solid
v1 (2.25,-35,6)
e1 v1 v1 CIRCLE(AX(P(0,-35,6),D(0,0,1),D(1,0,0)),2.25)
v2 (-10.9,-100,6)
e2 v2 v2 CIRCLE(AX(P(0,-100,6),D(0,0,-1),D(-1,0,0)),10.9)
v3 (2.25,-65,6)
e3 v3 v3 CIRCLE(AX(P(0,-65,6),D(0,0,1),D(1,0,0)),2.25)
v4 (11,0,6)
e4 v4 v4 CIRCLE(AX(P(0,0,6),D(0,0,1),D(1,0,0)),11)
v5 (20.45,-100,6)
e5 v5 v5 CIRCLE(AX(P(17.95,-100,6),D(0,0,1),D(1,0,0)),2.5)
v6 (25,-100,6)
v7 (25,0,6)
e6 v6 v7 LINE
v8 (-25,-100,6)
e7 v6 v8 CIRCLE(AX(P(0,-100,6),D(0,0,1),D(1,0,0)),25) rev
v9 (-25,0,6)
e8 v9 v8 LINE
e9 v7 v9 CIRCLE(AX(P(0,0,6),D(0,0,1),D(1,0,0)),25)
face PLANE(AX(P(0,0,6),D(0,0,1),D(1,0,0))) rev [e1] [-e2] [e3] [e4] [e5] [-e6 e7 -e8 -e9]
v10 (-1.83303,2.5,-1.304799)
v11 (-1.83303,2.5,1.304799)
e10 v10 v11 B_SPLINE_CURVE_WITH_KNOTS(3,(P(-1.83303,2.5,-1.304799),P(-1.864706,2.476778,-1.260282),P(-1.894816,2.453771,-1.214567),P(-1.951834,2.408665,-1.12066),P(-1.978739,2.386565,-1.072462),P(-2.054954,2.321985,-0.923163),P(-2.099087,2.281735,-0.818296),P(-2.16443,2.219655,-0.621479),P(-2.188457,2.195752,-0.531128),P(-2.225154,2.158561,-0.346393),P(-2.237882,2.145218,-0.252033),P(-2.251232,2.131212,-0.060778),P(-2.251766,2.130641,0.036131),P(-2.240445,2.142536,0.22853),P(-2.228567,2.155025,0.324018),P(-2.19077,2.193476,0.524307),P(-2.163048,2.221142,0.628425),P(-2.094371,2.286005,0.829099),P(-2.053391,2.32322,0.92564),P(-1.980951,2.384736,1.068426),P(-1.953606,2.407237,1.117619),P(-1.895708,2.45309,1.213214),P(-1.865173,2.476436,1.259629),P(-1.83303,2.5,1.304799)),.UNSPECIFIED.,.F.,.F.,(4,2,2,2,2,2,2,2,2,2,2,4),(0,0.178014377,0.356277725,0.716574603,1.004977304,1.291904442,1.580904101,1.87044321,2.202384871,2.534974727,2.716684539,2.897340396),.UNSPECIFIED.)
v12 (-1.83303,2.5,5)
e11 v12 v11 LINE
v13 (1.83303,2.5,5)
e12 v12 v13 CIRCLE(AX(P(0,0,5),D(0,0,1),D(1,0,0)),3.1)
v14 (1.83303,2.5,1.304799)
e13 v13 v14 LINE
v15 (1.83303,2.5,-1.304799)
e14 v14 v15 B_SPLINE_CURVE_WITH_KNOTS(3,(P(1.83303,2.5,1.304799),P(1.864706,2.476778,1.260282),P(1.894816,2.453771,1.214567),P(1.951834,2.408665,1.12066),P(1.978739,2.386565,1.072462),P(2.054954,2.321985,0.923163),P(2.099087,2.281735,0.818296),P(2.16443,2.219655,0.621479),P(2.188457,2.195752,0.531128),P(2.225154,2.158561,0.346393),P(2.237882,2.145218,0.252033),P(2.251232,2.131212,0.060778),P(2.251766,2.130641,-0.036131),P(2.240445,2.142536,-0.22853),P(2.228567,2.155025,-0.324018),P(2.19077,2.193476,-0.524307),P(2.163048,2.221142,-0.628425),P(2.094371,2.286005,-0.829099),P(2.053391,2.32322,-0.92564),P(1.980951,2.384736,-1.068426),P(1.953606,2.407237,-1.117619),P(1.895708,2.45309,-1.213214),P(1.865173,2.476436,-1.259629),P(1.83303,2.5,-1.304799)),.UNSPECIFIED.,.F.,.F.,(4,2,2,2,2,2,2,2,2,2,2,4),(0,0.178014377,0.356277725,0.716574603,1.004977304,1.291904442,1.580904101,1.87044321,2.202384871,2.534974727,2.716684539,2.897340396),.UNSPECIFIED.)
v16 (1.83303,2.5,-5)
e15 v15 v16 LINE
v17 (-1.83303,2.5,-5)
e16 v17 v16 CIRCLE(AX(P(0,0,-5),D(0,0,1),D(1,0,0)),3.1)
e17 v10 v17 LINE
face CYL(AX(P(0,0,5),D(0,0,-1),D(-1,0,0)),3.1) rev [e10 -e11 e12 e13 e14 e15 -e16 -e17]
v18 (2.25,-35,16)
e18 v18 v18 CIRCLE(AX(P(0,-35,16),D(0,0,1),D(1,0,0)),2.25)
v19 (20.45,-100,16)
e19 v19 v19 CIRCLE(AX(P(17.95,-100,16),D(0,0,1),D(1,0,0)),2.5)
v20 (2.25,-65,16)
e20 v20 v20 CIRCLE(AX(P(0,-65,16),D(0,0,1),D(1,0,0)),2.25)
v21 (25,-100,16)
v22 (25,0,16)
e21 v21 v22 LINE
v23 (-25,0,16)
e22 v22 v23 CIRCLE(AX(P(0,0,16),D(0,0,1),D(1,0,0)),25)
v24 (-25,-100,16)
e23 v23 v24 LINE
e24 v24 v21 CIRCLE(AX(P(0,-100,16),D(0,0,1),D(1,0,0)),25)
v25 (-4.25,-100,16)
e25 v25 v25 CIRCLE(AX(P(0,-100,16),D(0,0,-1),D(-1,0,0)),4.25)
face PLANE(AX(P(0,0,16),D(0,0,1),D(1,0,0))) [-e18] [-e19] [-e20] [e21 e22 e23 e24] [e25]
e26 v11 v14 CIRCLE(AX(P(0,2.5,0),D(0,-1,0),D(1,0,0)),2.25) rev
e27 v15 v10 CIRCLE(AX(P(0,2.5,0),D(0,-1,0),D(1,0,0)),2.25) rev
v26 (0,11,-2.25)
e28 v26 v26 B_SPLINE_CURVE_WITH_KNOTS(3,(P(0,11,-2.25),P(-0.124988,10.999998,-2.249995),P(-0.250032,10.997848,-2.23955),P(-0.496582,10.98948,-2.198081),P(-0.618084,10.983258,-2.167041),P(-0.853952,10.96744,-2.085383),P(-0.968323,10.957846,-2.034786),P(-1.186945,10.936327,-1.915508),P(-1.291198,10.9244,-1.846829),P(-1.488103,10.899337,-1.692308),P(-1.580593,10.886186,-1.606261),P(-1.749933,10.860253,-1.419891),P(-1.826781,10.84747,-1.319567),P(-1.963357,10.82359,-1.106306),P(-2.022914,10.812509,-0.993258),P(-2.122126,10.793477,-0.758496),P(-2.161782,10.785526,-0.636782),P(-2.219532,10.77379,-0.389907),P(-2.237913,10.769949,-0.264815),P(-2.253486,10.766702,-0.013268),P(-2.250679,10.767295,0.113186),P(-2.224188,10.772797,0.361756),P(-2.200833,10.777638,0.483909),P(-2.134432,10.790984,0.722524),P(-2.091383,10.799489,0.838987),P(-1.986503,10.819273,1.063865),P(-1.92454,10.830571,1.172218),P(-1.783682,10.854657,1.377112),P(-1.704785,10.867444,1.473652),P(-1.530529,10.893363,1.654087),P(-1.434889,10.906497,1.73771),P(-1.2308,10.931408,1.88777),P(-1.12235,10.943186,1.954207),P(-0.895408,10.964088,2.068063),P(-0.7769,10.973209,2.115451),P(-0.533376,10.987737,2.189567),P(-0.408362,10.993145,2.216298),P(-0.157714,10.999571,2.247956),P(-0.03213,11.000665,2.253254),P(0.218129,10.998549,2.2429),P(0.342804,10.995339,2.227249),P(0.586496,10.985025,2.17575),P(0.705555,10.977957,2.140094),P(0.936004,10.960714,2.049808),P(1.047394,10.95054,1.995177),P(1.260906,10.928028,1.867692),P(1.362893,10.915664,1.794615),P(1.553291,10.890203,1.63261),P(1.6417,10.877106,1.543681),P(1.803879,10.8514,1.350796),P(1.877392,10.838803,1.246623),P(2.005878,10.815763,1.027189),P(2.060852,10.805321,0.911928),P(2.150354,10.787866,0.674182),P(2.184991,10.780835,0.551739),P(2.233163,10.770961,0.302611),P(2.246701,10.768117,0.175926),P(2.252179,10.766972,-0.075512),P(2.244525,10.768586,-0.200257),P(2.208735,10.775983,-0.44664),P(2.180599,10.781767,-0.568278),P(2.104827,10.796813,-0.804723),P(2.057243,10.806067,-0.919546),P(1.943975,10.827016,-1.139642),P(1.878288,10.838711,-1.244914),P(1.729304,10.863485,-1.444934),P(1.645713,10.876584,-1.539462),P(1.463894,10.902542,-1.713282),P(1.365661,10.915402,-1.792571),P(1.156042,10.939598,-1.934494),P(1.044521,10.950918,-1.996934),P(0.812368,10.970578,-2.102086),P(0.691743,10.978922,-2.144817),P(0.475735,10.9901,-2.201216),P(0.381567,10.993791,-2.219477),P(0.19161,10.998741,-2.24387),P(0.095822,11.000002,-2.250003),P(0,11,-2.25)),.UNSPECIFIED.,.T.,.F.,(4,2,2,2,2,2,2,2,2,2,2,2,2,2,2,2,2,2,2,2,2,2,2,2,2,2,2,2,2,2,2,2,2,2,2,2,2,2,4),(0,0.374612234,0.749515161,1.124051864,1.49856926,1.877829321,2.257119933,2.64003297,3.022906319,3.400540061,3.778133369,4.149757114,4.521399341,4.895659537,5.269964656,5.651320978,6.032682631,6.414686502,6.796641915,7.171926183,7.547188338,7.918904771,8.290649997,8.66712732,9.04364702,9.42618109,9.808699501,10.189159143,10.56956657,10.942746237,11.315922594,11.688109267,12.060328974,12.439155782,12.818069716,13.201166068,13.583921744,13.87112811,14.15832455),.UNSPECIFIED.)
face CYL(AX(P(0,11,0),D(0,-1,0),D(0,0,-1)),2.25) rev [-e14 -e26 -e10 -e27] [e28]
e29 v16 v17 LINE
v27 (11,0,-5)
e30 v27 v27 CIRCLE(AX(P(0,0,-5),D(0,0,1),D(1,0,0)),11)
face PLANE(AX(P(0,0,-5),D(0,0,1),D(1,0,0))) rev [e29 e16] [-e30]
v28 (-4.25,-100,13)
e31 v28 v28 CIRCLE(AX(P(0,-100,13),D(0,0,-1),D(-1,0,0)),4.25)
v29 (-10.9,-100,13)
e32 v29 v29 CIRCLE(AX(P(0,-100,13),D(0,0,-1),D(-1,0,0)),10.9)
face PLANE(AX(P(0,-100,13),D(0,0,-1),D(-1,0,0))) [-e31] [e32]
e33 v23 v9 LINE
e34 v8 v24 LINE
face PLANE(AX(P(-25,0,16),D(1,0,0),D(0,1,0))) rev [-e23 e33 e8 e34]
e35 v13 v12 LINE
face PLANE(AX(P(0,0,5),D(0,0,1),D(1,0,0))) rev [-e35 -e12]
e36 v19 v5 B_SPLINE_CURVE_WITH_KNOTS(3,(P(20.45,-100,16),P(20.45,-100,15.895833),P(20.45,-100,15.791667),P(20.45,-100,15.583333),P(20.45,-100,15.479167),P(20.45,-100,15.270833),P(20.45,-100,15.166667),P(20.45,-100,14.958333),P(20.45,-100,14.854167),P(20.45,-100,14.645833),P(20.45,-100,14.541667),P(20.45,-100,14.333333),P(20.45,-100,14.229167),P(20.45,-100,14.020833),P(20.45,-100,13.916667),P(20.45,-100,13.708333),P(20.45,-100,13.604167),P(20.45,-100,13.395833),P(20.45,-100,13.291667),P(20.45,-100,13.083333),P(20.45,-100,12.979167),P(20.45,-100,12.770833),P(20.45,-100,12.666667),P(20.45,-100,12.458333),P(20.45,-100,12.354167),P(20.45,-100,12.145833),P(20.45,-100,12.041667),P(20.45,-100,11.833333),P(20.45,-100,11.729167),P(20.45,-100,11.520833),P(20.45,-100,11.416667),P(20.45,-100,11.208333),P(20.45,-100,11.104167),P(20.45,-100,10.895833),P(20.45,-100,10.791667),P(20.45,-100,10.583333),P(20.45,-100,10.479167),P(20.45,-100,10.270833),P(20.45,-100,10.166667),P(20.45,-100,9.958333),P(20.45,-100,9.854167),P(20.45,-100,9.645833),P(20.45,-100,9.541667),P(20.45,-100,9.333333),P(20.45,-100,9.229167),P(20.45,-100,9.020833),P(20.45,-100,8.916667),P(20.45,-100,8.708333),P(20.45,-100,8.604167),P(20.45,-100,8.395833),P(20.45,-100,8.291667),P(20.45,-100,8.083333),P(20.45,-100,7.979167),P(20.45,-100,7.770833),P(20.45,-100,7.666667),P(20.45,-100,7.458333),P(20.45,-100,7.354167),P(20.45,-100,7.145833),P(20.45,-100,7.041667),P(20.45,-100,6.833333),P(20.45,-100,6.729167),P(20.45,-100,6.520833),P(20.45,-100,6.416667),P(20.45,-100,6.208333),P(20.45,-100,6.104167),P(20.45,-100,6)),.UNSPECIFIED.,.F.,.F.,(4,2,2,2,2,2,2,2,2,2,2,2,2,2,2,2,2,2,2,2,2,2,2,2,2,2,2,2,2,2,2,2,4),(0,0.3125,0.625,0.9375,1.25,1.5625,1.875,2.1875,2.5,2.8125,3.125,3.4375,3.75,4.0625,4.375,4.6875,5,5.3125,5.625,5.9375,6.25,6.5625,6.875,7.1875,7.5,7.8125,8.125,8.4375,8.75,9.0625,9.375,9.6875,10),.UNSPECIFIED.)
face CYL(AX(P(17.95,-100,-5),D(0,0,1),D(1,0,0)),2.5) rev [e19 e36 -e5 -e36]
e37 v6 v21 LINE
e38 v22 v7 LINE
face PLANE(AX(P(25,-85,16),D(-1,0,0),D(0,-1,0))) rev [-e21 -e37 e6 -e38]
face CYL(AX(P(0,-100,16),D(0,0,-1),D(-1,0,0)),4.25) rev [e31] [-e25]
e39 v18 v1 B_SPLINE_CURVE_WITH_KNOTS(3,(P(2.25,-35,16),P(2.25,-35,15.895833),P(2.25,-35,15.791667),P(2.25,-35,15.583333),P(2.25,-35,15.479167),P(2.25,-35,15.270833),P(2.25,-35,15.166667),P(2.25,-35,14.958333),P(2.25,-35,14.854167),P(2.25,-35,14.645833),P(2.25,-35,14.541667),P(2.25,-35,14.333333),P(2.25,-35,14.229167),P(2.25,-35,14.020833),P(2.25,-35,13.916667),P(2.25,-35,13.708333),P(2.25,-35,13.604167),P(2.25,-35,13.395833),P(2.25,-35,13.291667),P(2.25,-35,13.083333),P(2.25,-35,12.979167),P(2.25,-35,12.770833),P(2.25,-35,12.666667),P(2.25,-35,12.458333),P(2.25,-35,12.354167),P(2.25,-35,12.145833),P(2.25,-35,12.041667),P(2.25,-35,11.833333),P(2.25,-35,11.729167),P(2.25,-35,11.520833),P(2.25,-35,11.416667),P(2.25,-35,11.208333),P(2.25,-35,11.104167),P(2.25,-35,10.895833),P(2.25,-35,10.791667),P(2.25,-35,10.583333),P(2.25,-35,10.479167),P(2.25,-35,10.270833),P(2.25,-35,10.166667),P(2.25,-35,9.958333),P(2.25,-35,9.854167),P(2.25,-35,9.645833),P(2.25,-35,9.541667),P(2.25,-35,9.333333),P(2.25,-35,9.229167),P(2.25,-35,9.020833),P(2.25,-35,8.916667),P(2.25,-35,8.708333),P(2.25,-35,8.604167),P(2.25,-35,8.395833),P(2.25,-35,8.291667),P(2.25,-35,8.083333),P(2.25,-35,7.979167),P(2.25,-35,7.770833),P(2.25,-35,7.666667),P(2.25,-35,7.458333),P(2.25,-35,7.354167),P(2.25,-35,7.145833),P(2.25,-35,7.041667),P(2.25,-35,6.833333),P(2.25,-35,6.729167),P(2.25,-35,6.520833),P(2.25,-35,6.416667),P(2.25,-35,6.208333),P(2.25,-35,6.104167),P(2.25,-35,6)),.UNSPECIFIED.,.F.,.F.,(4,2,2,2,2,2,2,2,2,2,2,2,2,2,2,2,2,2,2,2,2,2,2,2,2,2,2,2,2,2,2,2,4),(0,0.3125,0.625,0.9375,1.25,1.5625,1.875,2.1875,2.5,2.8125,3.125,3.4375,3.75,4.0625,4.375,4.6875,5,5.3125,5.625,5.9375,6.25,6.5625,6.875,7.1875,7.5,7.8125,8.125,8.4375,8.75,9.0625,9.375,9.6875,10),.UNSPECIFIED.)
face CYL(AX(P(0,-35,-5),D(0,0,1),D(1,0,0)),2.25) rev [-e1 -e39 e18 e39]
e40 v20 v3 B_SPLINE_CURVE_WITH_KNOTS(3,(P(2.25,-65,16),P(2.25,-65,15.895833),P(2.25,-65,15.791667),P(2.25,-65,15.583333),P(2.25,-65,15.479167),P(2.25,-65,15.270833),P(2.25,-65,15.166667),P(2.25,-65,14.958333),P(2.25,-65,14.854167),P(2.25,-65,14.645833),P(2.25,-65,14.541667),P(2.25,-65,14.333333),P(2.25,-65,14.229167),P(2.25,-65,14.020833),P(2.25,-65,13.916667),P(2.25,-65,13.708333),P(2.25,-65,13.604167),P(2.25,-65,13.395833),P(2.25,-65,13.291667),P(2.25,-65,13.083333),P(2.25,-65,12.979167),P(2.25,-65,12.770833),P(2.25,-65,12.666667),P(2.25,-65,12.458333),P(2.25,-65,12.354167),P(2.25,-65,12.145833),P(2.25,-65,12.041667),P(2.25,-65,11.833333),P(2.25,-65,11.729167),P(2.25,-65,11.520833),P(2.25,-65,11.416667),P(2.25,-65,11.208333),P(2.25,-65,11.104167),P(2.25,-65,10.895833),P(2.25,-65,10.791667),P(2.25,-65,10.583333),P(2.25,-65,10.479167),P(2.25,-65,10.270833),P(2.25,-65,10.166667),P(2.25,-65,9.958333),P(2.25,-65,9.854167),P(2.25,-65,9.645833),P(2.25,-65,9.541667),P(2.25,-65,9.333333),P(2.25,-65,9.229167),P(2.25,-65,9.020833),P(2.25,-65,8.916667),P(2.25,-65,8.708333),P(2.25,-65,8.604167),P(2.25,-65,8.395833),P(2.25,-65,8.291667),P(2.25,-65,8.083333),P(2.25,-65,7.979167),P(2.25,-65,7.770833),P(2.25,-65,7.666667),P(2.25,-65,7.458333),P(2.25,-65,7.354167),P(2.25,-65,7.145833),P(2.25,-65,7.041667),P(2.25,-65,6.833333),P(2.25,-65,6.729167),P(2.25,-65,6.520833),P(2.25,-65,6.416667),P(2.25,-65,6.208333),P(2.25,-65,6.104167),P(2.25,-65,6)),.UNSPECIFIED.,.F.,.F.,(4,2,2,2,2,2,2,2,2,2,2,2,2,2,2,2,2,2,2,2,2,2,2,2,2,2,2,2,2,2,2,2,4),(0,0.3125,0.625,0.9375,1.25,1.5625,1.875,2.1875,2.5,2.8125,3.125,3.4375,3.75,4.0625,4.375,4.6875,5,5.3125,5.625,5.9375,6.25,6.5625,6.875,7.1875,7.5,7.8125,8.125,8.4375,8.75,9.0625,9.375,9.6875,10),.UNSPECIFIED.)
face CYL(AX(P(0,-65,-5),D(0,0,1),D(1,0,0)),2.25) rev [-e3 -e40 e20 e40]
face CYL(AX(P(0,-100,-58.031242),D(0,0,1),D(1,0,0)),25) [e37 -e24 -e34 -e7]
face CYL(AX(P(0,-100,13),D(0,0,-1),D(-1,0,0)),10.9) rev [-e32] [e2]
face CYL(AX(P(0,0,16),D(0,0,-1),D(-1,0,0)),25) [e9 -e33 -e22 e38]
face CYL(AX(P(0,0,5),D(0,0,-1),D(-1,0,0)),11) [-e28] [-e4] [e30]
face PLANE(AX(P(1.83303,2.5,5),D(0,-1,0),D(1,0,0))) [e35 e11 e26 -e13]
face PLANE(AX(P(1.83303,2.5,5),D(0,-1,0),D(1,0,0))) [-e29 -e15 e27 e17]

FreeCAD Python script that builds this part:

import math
import FreeCAD as App
import Part
import Sketcher
from FreeCAD import Vector
Q = App.Units.Quantity

doc = App.newDocument("Part")
params = doc.addObject("Spreadsheet::Sheet", "Params")
for row, (alias, value) in enumerate([
    ("sketch1_diameter", "22 mm"),
    ("sketch1_radius", "3.1 mm"),
    ("pad1_length", "10 mm"),
    ("sketch2_diameter", "22 mm"),
    ("pad2_length", "6 mm"),
    ("sketch3_diameter", "4.5 mm"),
    ("sketch4_radius", "25 mm"),
    ("sketch4_height", "85 mm"),
    ("pad3_length", "5 mm"),
    ("pad3_length2", "5 mm"),
    ("sketch5_radius", "25 mm"),
    ("sketch5_height", "15 mm"),
    ("pad4_length", "10 mm"),
    ("sketch6_diameter", "4.5 mm"),
    ("sketch7_diameter", "21.8 mm"),
    ("pocket3_length", "7 mm"),
    ("sketch8_diameter", "8.5 mm"),
    ("sketch9_diameter", "5 mm"),
], start=1):
    params.set(f"A{row}", alias)
    params.set(f"B{row}", "=" + value)
    params.setAlias(f"B{row}", alias)

body = doc.addObject("PartDesign::Body", "Body")

# Sketch on XY plane
sketch1 = body.newObject("Sketcher::SketchObject", "Sketch")
sketch1.AttachmentSupport = (doc.getObject("XY_Plane"), [""])
sketch1.MapMode = "FlatFace"
sketch1.addGeometry([
    Part.Circle(Vector(0, 0, 0), Vector(0, 0, 1), 11),
    Part.LineSegment(Vector(-1.8, 2.5, 0), Vector(1.8, 2.5, 0)),
    Part.ArcOfCircle(Part.Circle(Vector(0, 0, 0), Vector(0, 0, 1), 3.1), math.radians(126), math.radians(414)),
], False)
sketch1.addConstraint([
    Sketcher.Constraint("Coincident", 1, 1, 2, 1),
    Sketcher.Constraint("Coincident", 2, 2, 1, 2),
    Sketcher.Constraint("Horizontal", 1),
    Sketcher.Constraint("Coincident", 0, 3, -1, 1),
    Sketcher.Constraint("Coincident", 2, 3, -1, 1),
    Sketcher.Constraint("Diameter", 0, Q("22 mm")),
    Sketcher.Constraint("Radius", 2, Q("3.1 mm")),
    Sketcher.Constraint("DistanceY", -1, 1, 1, 1, Q("2.5 mm")),
])
sketch1.setExpression("Constraints[5]", "Params.sketch1_diameter")
sketch1.setExpression("Constraints[6]", "Params.sketch1_radius")
pad1 = body.newObject("PartDesign::Pad", "Pad")
pad1.Profile = sketch1
pad1.setExpression("Length", "Params.pad1_length")
pad1.Midplane = True

# Sketch on XY plane
sketch2 = body.newObject("Sketcher::SketchObject", "Sketch001")
sketch2.AttachmentSupport = (doc.getObject("XY_Plane"), [""])
sketch2.MapMode = "FlatFace"
sketch2.AttachmentOffset = App.Placement(Vector(0, 0, 11), App.Rotation())
sketch2.addGeometry(Part.Circle(Vector(0, 0, 0), Vector(0, 0, 1), 11), False)
sketch2.addConstraint([
    Sketcher.Constraint("Coincident", 0, 3, -1, 1),
    Sketcher.Constraint("Diameter", 0, Q("22 mm")),
])
sketch2.setExpression("Constraints[1]", "Params.sketch2_diameter")
pad2 = body.newObject("PartDesign::Pad", "Pad001")
pad2.Profile = sketch2
pad2.setExpression("Length", "Params.pad2_length")
pad2.Reversed = True

# Sketch on XZ plane
sketch3 = body.newObject("Sketcher::SketchObject", "Sketch002")
sketch3.AttachmentSupport = (doc.getObject("XZ_Plane"), [""])
sketch3.MapMode = "FlatFace"
sketch3.addGeometry(Part.Circle(Vector(0, 0, 0), Vector(0, 0, 1), 2.2), False)
sketch3.addConstraint([
    Sketcher.Constraint("Coincident", 0, 3, -1, 1),
    Sketcher.Constraint("Diameter", 0, Q("4.5 mm")),
])
sketch3.setExpression("Constraints[1]", "Params.sketch3_diameter")
pocket1 = body.newObject("PartDesign::Pocket", "Pocket")
pocket1.Profile = sketch3
pocket1.Type = "ThroughAll"

# Sketch on XY plane
sketch4 = body.newObject("Sketcher::SketchObject", "Sketch003")
sketch4.AttachmentSupport = (doc.getObject("XY_Plane"), [""])
sketch4.MapMode = "FlatFace"
sketch4.AttachmentOffset = App.Placement(Vector(0, 0, 11), App.Rotation())
sketch4.addGeometry([
    Part.LineSegment(Vector(-25, 0, 0), Vector(-25, -85, 0)),
    Part.LineSegment(Vector(-25, -85, 0), Vector(25, -85, 0)),
    Part.LineSegment(Vector(25, -85, 0), Vector(25, 0, 0)),
    Part.ArcOfCircle(Part.Circle(Vector(0, 0, 0), Vector(0, 0, 1), 25), math.radians(0), math.radians(180)),
], False)
sketch4.addConstraint([
    Sketcher.Constraint("Coincident", 0, 2, 1, 1),
    Sketcher.Constraint("Coincident", 1, 2, 2, 1),
    Sketcher.Constraint("Tangent", 2, 2, 3, 1),
    Sketcher.Constraint("Tangent", 3, 2, 0, 1),
    Sketcher.Constraint("Vertical", 0),
    Sketcher.Constraint("Horizontal", 1),
    Sketcher.Constraint("Vertical", 2),
    Sketcher.Constraint("Coincident", 3, 3, -1, 1),
    Sketcher.Constraint("Radius", 3, Q("25 mm")),
    Sketcher.Constraint("DistanceY", 0, 2, 0, 1, Q("85 mm")),
])
sketch4.setExpression("Constraints[8]", "Params.sketch4_radius")
sketch4.setExpression("Constraints[9]", "Params.sketch4_height")
pad3 = body.newObject("PartDesign::Pad", "Pad002")
pad3.Profile = sketch4
pad3.Type = "TwoLengths"
pad3.setExpression("Length", "Params.pad3_length")
pad3.setExpression("Length2", "Params.pad3_length2")

# Sketch on XY plane
sketch5 = body.newObject("Sketcher::SketchObject", "Sketch004")
sketch5.AttachmentSupport = (doc.getObject("XY_Plane"), [""])
sketch5.MapMode = "FlatFace"
sketch5.AttachmentOffset = App.Placement(Vector(0, 0, 16), App.Rotation())
sketch5.addGeometry([
    Part.LineSegment(Vector(-25, -85, 0), Vector(-25, -100, 0)),
    Part.ArcOfCircle(Part.Circle(Vector(0, -100, 0), Vector(0, 0, 1), 25), math.radians(180), math.radians(360)),
    Part.LineSegment(Vector(25, -100, 0), Vector(25, -85, 0)),
    Part.LineSegment(Vector(25, -85, 0), Vector(-25, -85, 0)),
], False)
sketch5.addConstraint([
    Sketcher.Constraint("Tangent", 0, 2, 1, 1),
    Sketcher.Constraint("Tangent", 1, 2, 2, 1),
    Sketcher.Constraint("Coincident", 2, 2, 3, 1),
    Sketcher.Constraint("Coincident", 3, 2, 0, 1),
    Sketcher.Constraint("Vertical", 0),
    Sketcher.Constraint("Vertical", 2),
    Sketcher.Constraint("Horizontal", 3),
    Sketcher.Constraint("PointOnObject", 1, 3, -2),
    Sketcher.Constraint("Radius", 1, Q("25 mm")),
    Sketcher.Constraint("DistanceY", 0, 2, 0, 1, Q("15 mm")),
    Sketcher.Constraint("DistanceY", 1, 3, -1, 1, Q("100 mm")),
])
sketch5.setExpression("Constraints[8]", "Params.sketch5_radius")
sketch5.setExpression("Constraints[9]", "Params.sketch5_height")
pad4 = body.newObject("PartDesign::Pad", "Pad003")
pad4.Profile = sketch5
pad4.setExpression("Length", "Params.pad4_length")
pad4.Reversed = True

# Sketch on XY plane
sketch6 = body.newObject("Sketcher::SketchObject", "Sketch005")
sketch6.AttachmentSupport = (doc.getObject("XY_Plane"), [""])
sketch6.MapMode = "FlatFace"
sketch6.AttachmentOffset = App.Placement(Vector(0, 0, 16), App.Rotation())
sketch6.addGeometry([
    Part.Circle(Vector(0, -35, 0), Vector(0, 0, 1), 2.2),
    Part.Circle(Vector(0, -65, 0), Vector(0, 0, 1), 2.2),
], False)
sketch6.addConstraint([
    Sketcher.Constraint("Equal", 0, 1),
    Sketcher.Constraint("PointOnObject", 0, 3, -2),
    Sketcher.Constraint("PointOnObject", 1, 3, -2),
    Sketcher.Constraint("Diameter", 0, Q("4.5 mm")),
    Sketcher.Constraint("DistanceY", 0, 3, -1, 1, Q("35 mm")),
    Sketcher.Constraint("DistanceY", 1, 3, -1, 1, Q("65 mm")),
])
sketch6.setExpression("Constraints[3]", "Params.sketch6_diameter")
pocket2 = body.newObject("PartDesign::Pocket", "Pocket001")
pocket2.Profile = sketch6
pocket2.Type = "ThroughAll"

# Sketch on XY plane
sketch7 = body.newObject("Sketcher::SketchObject", "Sketch006")
sketch7.AttachmentSupport = (doc.getObject("XY_Plane"), [""])
sketch7.MapMode = "FlatFace"
sketch7.AttachmentOffset = App.Placement(Vector(0, 0, 6), App.Rotation())
sketch7.addGeometry(Part.Circle(Vector(0, -100, 0), Vector(0, 0, 1), 11), False)
sketch7.addConstraint([
    Sketcher.Constraint("PointOnObject", 0, 3, -2),
    Sketcher.Constraint("Diameter", 0, Q("21.8 mm")),
    Sketcher.Constraint("DistanceY", 0, 3, -1, 1, Q("100 mm")),
])
sketch7.setExpression("Constraints[1]", "Params.sketch7_diameter")
pocket3 = body.newObject("PartDesign::Pocket", "Pocket002")
pocket3.Profile = sketch7
pocket3.setExpression("Length", "Params.pocket3_length")
pocket3.Reversed = True

# Sketch on XY plane
sketch8 = body.newObject("Sketcher::SketchObject", "Sketch007")
sketch8.AttachmentSupport = (doc.getObject("XY_Plane"), [""])
sketch8.MapMode = "FlatFace"
sketch8.AttachmentOffset = App.Placement(Vector(0, 0, 13), App.Rotation())
sketch8.addGeometry(Part.Circle(Vector(0, -100, 0), Vector(0, 0, 1), 4.2), False)
sketch8.addConstraint([
    Sketcher.Constraint("PointOnObject", 0, 3, -2),
    Sketcher.Constraint("Diameter", 0, Q("8.5 mm")),
    Sketcher.Constraint("DistanceY", 0, 3, -1, 1, Q("100 mm")),
])
sketch8.setExpression("Constraints[1]", "Params.sketch8_diameter")
pocket4 = body.newObject("PartDesign::Pocket", "Pocket003")
pocket4.Profile = sketch8
pocket4.Type = "ThroughAll"
pocket4.Reversed = True

# Sketch on XY plane
sketch9 = body.newObject("Sketcher::SketchObject", "Sketch008")
sketch9.AttachmentSupport = (doc.getObject("XY_Plane"), [""])
sketch9.MapMode = "FlatFace"
sketch9.AttachmentOffset = App.Placement(Vector(0, 0, 16), App.Rotation())
sketch9.addGeometry(Part.Circle(Vector(17.9, -100, 0), Vector(0, 0, 1), 2.5), False)
sketch9.addConstraint([
    Sketcher.Constraint("Diameter", 0, Q("5 mm")),
    Sketcher.Constraint("DistanceY", 0, 3, -1, 1, Q("100 mm")),
    Sketcher.Constraint("DistanceX", -1, 1, 0, 3, Q("17.95 mm")),
])
sketch9.setExpression("Constraints[0]", "Params.sketch9_diameter")
pocket5 = body.newObject("PartDesign::Pocket", "Pocket004")
pocket5.Profile = sketch9
pocket5.Type = "ThroughAll"

doc.recompute()
